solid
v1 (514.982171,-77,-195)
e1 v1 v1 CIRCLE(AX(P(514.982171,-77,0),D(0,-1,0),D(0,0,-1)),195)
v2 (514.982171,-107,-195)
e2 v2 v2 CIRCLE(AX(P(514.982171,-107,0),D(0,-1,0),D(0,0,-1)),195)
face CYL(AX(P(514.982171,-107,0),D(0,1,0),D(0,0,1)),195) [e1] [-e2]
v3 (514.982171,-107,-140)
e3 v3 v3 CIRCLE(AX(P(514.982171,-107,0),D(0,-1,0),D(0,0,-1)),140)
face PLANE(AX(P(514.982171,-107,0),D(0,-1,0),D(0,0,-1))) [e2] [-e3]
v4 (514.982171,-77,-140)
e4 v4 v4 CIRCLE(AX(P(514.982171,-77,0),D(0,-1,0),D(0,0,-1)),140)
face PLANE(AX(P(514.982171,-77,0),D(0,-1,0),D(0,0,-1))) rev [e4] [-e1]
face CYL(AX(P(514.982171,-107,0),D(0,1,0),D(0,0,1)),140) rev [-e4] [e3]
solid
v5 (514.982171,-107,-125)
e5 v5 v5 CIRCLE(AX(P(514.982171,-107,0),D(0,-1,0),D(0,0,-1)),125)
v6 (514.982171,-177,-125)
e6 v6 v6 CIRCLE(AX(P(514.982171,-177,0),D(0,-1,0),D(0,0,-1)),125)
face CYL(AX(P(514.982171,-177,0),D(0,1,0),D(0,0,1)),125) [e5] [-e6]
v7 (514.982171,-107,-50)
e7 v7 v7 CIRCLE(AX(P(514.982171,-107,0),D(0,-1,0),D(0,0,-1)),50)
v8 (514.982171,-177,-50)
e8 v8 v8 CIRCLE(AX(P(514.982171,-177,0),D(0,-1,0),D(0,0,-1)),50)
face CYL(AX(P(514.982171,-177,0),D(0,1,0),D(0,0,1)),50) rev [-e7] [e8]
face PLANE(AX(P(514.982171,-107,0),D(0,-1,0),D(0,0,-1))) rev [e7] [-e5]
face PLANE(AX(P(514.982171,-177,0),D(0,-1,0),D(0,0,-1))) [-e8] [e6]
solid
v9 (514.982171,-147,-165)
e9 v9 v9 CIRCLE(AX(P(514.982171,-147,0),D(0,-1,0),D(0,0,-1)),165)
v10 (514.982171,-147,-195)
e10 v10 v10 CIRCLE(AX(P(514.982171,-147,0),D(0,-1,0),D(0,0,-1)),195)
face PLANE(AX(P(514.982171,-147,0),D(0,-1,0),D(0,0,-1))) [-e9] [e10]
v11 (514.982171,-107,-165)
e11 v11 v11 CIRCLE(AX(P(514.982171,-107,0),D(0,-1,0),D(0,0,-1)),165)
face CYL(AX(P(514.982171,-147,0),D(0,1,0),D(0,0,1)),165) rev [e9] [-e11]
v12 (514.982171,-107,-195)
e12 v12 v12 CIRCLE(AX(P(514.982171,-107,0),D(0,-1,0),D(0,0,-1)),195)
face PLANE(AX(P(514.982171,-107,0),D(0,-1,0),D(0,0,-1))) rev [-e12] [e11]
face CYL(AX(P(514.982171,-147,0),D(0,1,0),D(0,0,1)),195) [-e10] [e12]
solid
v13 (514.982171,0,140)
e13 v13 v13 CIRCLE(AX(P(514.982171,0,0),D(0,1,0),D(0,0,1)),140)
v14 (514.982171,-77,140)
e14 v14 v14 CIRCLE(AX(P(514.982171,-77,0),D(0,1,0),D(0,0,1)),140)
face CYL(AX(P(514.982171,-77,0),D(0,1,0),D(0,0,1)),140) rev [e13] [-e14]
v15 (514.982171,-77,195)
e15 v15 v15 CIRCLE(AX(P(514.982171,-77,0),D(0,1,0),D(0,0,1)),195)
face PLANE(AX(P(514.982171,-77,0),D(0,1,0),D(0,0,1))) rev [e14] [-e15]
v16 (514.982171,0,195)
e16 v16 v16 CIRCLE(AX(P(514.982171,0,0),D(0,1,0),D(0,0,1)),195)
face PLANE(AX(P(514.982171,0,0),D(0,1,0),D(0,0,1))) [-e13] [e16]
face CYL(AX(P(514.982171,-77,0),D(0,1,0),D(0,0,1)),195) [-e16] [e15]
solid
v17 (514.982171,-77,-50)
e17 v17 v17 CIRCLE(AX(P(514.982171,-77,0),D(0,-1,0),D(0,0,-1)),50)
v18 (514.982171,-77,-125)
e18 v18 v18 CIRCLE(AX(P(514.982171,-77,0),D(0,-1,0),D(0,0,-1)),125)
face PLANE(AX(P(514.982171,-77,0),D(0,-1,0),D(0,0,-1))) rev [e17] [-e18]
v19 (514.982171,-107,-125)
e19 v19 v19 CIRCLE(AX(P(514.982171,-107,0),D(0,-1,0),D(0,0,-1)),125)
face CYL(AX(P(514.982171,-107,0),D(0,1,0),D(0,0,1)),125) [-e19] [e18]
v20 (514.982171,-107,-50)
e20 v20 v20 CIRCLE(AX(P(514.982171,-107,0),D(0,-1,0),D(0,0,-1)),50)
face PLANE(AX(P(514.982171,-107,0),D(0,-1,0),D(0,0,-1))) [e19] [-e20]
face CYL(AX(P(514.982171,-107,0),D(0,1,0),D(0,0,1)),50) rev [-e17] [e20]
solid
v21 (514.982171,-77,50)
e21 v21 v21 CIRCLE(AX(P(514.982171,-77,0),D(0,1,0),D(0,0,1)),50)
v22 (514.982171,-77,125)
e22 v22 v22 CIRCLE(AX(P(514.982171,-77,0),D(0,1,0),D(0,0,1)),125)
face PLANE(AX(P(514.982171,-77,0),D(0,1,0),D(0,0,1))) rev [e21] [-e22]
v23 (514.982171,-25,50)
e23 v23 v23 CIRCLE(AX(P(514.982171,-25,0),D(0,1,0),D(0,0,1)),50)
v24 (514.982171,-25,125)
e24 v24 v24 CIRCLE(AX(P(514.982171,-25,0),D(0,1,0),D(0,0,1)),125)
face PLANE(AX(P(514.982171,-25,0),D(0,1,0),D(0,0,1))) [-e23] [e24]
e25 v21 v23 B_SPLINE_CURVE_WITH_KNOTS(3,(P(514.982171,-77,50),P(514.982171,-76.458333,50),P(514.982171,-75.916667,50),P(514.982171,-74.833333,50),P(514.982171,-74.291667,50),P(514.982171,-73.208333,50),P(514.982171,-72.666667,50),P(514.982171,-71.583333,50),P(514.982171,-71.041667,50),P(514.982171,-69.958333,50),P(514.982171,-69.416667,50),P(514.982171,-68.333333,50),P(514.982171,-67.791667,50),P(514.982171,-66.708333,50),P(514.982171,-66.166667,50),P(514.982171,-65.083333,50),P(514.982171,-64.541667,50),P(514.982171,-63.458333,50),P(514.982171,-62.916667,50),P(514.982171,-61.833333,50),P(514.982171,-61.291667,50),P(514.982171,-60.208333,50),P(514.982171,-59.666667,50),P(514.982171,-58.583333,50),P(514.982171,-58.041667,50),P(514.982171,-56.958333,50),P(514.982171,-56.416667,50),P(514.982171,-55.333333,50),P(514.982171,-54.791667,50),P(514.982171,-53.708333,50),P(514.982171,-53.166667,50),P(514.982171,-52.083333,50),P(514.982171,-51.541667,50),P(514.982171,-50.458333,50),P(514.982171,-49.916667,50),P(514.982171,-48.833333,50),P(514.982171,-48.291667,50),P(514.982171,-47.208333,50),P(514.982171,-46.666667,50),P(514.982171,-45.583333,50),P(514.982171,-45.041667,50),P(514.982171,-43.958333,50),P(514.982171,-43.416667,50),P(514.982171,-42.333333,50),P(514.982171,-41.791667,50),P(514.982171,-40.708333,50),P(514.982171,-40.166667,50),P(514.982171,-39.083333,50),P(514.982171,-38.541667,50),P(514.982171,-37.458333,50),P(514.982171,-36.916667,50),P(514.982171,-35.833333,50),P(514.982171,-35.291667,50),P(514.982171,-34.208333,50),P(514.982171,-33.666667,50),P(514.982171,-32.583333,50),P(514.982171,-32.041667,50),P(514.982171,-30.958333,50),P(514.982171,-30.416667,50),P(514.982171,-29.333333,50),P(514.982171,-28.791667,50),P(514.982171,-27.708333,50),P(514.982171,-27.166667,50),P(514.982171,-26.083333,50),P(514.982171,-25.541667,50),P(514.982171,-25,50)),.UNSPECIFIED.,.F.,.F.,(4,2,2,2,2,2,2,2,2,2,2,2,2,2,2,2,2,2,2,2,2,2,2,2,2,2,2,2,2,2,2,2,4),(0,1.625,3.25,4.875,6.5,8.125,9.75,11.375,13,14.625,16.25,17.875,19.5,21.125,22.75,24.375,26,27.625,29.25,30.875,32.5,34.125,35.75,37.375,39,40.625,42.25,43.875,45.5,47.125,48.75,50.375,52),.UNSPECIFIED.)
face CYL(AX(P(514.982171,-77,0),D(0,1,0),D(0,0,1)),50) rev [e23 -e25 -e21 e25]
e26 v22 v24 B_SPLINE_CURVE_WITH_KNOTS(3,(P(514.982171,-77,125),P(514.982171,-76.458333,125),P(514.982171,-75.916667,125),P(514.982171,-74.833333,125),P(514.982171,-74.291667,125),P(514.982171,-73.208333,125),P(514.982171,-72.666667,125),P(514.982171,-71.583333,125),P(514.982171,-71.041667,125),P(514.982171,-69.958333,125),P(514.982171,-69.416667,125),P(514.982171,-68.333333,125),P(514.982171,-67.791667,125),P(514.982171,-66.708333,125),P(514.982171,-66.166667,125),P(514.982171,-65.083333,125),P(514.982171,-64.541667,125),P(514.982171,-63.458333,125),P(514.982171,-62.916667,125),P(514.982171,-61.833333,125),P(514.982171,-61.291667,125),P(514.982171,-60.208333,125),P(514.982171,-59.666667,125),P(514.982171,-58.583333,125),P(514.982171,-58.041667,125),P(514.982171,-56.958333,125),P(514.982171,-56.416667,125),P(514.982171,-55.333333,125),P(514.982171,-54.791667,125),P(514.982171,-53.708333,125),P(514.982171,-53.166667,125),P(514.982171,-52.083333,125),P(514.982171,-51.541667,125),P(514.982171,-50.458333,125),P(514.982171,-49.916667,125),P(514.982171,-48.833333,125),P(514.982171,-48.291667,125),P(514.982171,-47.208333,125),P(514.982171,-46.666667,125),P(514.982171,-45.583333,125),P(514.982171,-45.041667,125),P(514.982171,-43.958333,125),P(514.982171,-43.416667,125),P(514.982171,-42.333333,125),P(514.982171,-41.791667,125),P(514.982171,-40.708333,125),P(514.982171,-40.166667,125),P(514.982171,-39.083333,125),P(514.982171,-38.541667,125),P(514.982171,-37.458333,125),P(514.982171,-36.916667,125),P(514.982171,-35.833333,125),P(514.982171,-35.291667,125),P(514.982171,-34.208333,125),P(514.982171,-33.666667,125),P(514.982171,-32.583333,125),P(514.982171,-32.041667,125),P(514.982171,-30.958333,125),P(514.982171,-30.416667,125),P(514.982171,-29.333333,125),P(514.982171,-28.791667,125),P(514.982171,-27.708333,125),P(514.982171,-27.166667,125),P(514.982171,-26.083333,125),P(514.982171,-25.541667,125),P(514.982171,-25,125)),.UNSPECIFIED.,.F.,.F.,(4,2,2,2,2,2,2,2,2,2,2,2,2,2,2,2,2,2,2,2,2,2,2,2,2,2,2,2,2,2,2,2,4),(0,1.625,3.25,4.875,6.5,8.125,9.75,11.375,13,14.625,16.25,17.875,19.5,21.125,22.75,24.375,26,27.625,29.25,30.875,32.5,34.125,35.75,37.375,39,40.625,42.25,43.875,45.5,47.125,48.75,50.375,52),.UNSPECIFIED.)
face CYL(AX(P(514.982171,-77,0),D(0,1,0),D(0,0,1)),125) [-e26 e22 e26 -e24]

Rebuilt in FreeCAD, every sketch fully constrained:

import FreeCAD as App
import Part
import Sketcher
from FreeCAD import Vector
Q = App.Units.Quantity

doc = App.newDocument("Part")
body = doc.addObject("PartDesign::Body", "Body")

sketch1 = doc.addObject("Sketcher::SketchObject", "Sketch")
body.addObject(sketch1)
sketch1.AttachmentSupport = (doc.XZ_Plane, [""])
sketch1.MapMode = "FlatFace"
sketch1.addGeometry(Part.Circle(Vector(514.982171, 0, 0), Vector(0, 0, 1), 195), False)
sketch1.addGeometry(Part.Circle(Vector(514.982171, 0, 0), Vector(0, 0, 1), 140), False)
sketch1.addConstraint(Sketcher.Constraint("Coincident", 1, 3, 0, 3))
sketch1.addConstraint(Sketcher.Constraint("PointOnObject", 0, 3, -1))
sketch1.addConstraint(Sketcher.Constraint("Diameter", 0, Q("390 mm")))
sketch1.addConstraint(Sketcher.Constraint("Diameter", 1, Q("280 mm")))
sketch1.addConstraint(Sketcher.Constraint("DistanceX", -1, 1, 0, 3, Q("514.982171 mm")))
pad1 = doc.addObject("PartDesign::Pad", "Pad")
body.addObject(pad1)
pad1.Profile = sketch1
pad1.Length = 77
body2 = doc.addObject("PartDesign::Body", "Body001")

sketch2 = doc.addObject("Sketcher::SketchObject", "Sketch001")
body2.addObject(sketch2)
sketch2.AttachmentSupport = (doc.getObject("XZ_Plane001"), [""])
sketch2.MapMode = "FlatFace"
sketch2.AttachmentOffset = App.Placement(Vector(0, 0, 77), App.Rotation())
sketch2.addGeometry(Part.Circle(Vector(514.982171, 0, 0), Vector(0, 0, 1), 195), False)
sketch2.addGeometry(Part.Circle(Vector(514.982171, 0, 0), Vector(0, 0, 1), 140), False)
sketch2.addConstraint(Sketcher.Constraint("Coincident", 1, 3, 0, 3))
sketch2.addConstraint(Sketcher.Constraint("PointOnObject", 0, 3, -1))
sketch2.addConstraint(Sketcher.Constraint("Diameter", 0, Q("390 mm")))
sketch2.addConstraint(Sketcher.Constraint("Diameter", 1, Q("280 mm")))
sketch2.addConstraint(Sketcher.Constraint("DistanceX", -1, 1, 0, 3, Q("514.982171 mm")))
pad2 = doc.addObject("PartDesign::Pad", "Pad001")
body2.addObject(pad2)
pad2.Profile = sketch2
pad2.Length = 30
body3 = doc.addObject("PartDesign::Body", "Body002")

sketch3 = doc.addObject("Sketcher::SketchObject", "Sketch002")
body3.addObject(sketch3)
sketch3.AttachmentSupport = (doc.getObject("XZ_Plane002"), [""])
sketch3.MapMode = "FlatFace"
sketch3.AttachmentOffset = App.Placement(Vector(0, 0, 107), App.Rotation())
sketch3.addGeometry(Part.Circle(Vector(514.982171, 0, 0), Vector(0, 0, 1), 195), False)
sketch3.addGeometry(Part.Circle(Vector(514.982171, 0, 0), Vector(0, 0, 1), 165), False)
sketch3.addConstraint(Sketcher.Constraint("Coincident", 1, 3, 0, 3))
sketch3.addConstraint(Sketcher.Constraint("PointOnObject", 0, 3, -1))
sketch3.addConstraint(Sketcher.Constraint("Diameter", 0, Q("390 mm")))
sketch3.addConstraint(Sketcher.Constraint("Diameter", 1, Q("330 mm")))
sketch3.addConstraint(Sketcher.Constraint("DistanceX", -1, 1, 0, 3, Q("514.982171 mm")))
pad3 = doc.addObject("PartDesign::Pad", "Pad002")
body3.addObject(pad3)
pad3.Profile = sketch3
pad3.Length = 40
body4 = doc.addObject("PartDesign::Body", "Body003")

sketch4 = doc.addObject("Sketcher::SketchObject", "Sketch003")
body4.addObject(sketch4)
sketch4.AttachmentSupport = (doc.getObject("XZ_Plane003"), [""])
sketch4.MapMode = "FlatFace"
sketch4.AttachmentOffset = App.Placement(Vector(0, 0, 25), App.Rotation())
sketch4.addGeometry(Part.Circle(Vector(514.982171, 0, 0), Vector(0, 0, 1), 125), False)
sketch4.addGeometry(Part.Circle(Vector(514.982171, 0, 0), Vector(0, 0, 1), 50), False)
sketch4.addConstraint(Sketcher.Constraint("Coincident", 1, 3, 0, 3))
sketch4.addConstraint(Sketcher.Constraint("PointOnObject", 0, 3, -1))
sketch4.addConstraint(Sketcher.Constraint("Diameter", 0, Q("250 mm")))
sketch4.addConstraint(Sketcher.Constraint("Diameter", 1, Q("100 mm")))
sketch4.addConstraint(Sketcher.Constraint("DistanceX", -1, 1, 0, 3, Q("514.982171 mm")))
pad4 = doc.addObject("PartDesign::Pad", "Pad003")
body4.addObject(pad4)
pad4.Profile = sketch4
pad4.Length = 52
body5 = doc.addObject("PartDesign::Body", "Body004")

sketch5 = doc.addObject("Sketcher::SketchObject", "Sketch004")
body5.addObject(sketch5)
sketch5.AttachmentSupport = (doc.getObject("XZ_Plane004"), [""])
sketch5.MapMode = "FlatFace"
sketch5.AttachmentOffset = App.Placement(Vector(0, 0, 77), App.Rotation())
sketch5.addGeometry(Part.Circle(Vector(514.982171, 0, 0), Vector(0, 0, 1), 125), False)
sketch5.addGeometry(Part.Circle(Vector(514.982171, 0, 0), Vector(0, 0, 1), 50), False)
sketch5.addConstraint(Sketcher.Constraint("Coincident", 1, 3, 0, 3))
sketch5.addConstraint(Sketcher.Constraint("PointOnObject", 0, 3, -1))
sketch5.addConstraint(Sketcher.Constraint("Diameter", 0, Q("250 mm")))
sketch5.addConstraint(Sketcher.Constraint("Diameter", 1, Q("100 mm")))
sketch5.addConstraint(Sketcher.Constraint("DistanceX", -1, 1, 0, 3, Q("514.982171 mm")))
pad5 = doc.addObject("PartDesign::Pad", "Pad004")
body5.addObject(pad5)
pad5.Profile = sketch5
pad5.Length = 30
body6 = doc.addObject("PartDesign::Body", "Body005")

sketch6 = doc.addObject("Sketcher::SketchObject", "Sketch005")
body6.addObject(sketch6)
sketch6.AttachmentSupport = (doc.getObject("XZ_Plane005"), [""])
sketch6.MapMode = "FlatFace"
sketch6.AttachmentOffset = App.Placement(Vector(0, 0, 107), App.Rotation())
sketch6.addGeometry(Part.Circle(Vector(514.982171, 0, 0), Vector(0, 0, 1), 125), False)
sketch6.addGeometry(Part.Circle(Vector(514.982171, 0, 0), Vector(0, 0, 1), 50), False)
sketch6.addConstraint(Sketcher.Constraint("Coincident", 1, 3, 0, 3))
sketch6.addConstraint(Sketcher.Constraint("PointOnObject", 0, 3, -1))
sketch6.addConstraint(Sketcher.Constraint("Diameter", 0, Q("250 mm")))
sketch6.addConstraint(Sketcher.Constraint("Diameter", 1, Q("100 mm")))
sketch6.addConstraint(Sketcher.Constraint("DistanceX", -1, 1, 0, 3, Q("514.982171 mm")))
pad6 = doc.addObject("PartDesign::Pad", "Pad005")
body6.addObject(pad6)
pad6.Profile = sketch6
pad6.Length = 70

doc.recompute()
